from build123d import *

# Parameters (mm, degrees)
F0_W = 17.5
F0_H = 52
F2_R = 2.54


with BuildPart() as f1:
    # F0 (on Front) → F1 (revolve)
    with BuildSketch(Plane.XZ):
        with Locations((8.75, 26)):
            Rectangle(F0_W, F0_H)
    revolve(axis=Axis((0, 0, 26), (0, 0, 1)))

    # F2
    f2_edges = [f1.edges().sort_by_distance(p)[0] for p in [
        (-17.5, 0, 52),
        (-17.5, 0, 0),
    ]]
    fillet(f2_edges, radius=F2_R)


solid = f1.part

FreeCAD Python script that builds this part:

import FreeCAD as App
import Part
import Sketcher
from FreeCAD import Vector


def edges_at(feature, points):
    """Names of the edges that pass closest to the given points."""
    edges = feature.Shape.Edges
    near = lambda p: min(range(len(edges)), key=lambda i: edges[i].distToShape(Part.Vertex(*p))[0])
    return sorted({f"Edge{near(p) + 1}" for p in points})


def add_polygon(sketch, points):
    """Adds a closed chain of lines whose ends are joined by coincident constraints."""
    first, n = sketch.GeometryCount, len(points)
    for a, b in zip(points, points[1:] + points[:1]):
        sketch.addGeometry(Part.LineSegment(App.Vector(*a, 0), App.Vector(*b, 0)), False)
    for i in range(n):
        sketch.addConstraint(Sketcher.Constraint("Coincident", first + i, 2, first + (i + 1) % n, 1))

doc = App.newDocument("Part")
params = doc.addObject("Spreadsheet::Sheet", "Params")
for row, (alias, value) in enumerate([
    ("sketch1_height", "52 mm"),
    ("sketch1_width", "17.5 mm"),
    ("revolution_angle", "360 deg"),
    ("fillet_radius", "2.54 mm"),
], start=1):
    params.set(f"A{row}", alias)
    params.set(f"B{row}", "=" + value)
    params.setAlias(f"B{row}", alias)

body = doc.addObject("PartDesign::Body", "Body")

# Sketch on XZ plane
sketch1 = doc.addObject("Sketcher::SketchObject", "Sketch")
body.addObject(sketch1)
sketch1.AttachmentSupport = (doc.XZ_Plane, [""])
sketch1.MapMode = "FlatFace"
add_polygon(sketch1, [(0, 52), (0, 0), (18, 0), (18, 52)])  # lines 0-3
sketch1.addConstraint([
    Sketcher.Constraint("Vertical", 0),
    Sketcher.Constraint("Horizontal", 1),
    Sketcher.Constraint("Vertical", 2),
    Sketcher.Constraint("Horizontal", 3),
    Sketcher.Constraint("Coincident", 0, 2, -1, 1),
    Sketcher.Constraint("DistanceY", 0, 2, 0, 1, 52.0),
    Sketcher.Constraint("DistanceX", 1, 1, 1, 2, 17.5),
])
sketch1.setExpression("Constraints[9]", "Params.sketch1_height")
sketch1.setExpression("Constraints[10]", "Params.sketch1_width")
revolution = doc.addObject("PartDesign::Revolution", "Revolution")
body.addObject(revolution)
revolution.Profile = sketch1
revolution.ReferenceAxis = (sketch1, ["V_Axis"])
revolution.setExpression("Angle", "Params.revolution_angle")
doc.recompute()

fillet = doc.addObject("PartDesign::Fillet", "Fillet")
body.addObject(fillet)
fillet.Base = (revolution, edges_at(revolution, [(-17.5, 0, 52), (-17.5, 0, 0)]))
fillet.setExpression("Radius", "Params.fillet_radius")

doc.recompute()
